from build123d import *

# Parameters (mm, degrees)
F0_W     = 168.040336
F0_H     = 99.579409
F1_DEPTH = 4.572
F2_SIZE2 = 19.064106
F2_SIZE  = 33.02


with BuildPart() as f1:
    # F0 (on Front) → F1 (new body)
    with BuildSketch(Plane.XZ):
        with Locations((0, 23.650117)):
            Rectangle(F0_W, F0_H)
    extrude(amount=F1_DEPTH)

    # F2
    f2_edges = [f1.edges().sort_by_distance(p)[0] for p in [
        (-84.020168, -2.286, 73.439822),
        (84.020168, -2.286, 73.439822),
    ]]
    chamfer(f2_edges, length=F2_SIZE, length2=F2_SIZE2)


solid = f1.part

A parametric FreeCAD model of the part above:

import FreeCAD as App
import Part
import Sketcher
Q = App.Units.Quantity


def edges_at(feature, points):
    """Names of the edges that pass closest to the given points."""
    edges = feature.Shape.Edges
    near = lambda p: min(range(len(edges)), key=lambda i: edges[i].distToShape(Part.Vertex(*p))[0])
    return sorted({f"Edge{near(p) + 1}" for p in points})


def add_polygon(sketch, points):
    """Adds a closed chain of lines whose ends are joined by coincident constraints."""
    first, n = sketch.GeometryCount, len(points)
    for a, b in zip(points, points[1:] + points[:1]):
        sketch.addGeometry(Part.LineSegment(App.Vector(*a, 0), App.Vector(*b, 0)), False)
    for i in range(n):
        sketch.addConstraint(Sketcher.Constraint("Coincident", first + i, 2, first + (i + 1) % n, 1))

doc = App.newDocument("Part")
body = doc.addObject("PartDesign::Body", "Body")

# Sketch on XZ plane
sketch1 = body.newObject("Sketcher::SketchObject", "Sketch")
sketch1.AttachmentSupport = (doc.getObject("XZ_Plane"), [""])
sketch1.MapMode = "FlatFace"
add_polygon(sketch1, [(-84.020168, 73.439821), (-84.020168, -26.139588), (84.020168, -26.139588), (84.020168, 73.439821)])  # lines 0-3
sketch1.addConstraint(Sketcher.Constraint("Vertical", 0))
sketch1.addConstraint(Sketcher.Constraint("Horizontal", 1))
sketch1.addConstraint(Sketcher.Constraint("Vertical", 2))
sketch1.addConstraint(Sketcher.Constraint("Horizontal", 3))
sketch1.addConstraint(Sketcher.Constraint("DistanceY", 0, 2, 0, 1, Q("99.579409 mm")))
sketch1.addConstraint(Sketcher.Constraint("DistanceX", 1, 1, 1, 2, Q("168.040336 mm")))
sketch1.addConstraint(Sketcher.Constraint("DistanceX", 0, 2, -1, 1, Q("84.020168 mm")))
sketch1.addConstraint(Sketcher.Constraint("DistanceY", -1, 1, 2, 2, Q("73.439821 mm")))
pad1 = body.newObject("PartDesign::Pad", "Pad")
pad1.Profile = sketch1
pad1.Length = Q("0.18 in")
doc.recompute()

chamfer = body.newObject("PartDesign::Chamfer", "Chamfer")
chamfer.Base = (pad1, edges_at(pad1, [(-84.02, -2.286, 73.44), (84.02, -2.286, 73.44)]))
chamfer.ChamferType = "Two distances"
chamfer.Size = Q("1.3 in")
chamfer.Size2 = 19.064106

doc.recompute()
